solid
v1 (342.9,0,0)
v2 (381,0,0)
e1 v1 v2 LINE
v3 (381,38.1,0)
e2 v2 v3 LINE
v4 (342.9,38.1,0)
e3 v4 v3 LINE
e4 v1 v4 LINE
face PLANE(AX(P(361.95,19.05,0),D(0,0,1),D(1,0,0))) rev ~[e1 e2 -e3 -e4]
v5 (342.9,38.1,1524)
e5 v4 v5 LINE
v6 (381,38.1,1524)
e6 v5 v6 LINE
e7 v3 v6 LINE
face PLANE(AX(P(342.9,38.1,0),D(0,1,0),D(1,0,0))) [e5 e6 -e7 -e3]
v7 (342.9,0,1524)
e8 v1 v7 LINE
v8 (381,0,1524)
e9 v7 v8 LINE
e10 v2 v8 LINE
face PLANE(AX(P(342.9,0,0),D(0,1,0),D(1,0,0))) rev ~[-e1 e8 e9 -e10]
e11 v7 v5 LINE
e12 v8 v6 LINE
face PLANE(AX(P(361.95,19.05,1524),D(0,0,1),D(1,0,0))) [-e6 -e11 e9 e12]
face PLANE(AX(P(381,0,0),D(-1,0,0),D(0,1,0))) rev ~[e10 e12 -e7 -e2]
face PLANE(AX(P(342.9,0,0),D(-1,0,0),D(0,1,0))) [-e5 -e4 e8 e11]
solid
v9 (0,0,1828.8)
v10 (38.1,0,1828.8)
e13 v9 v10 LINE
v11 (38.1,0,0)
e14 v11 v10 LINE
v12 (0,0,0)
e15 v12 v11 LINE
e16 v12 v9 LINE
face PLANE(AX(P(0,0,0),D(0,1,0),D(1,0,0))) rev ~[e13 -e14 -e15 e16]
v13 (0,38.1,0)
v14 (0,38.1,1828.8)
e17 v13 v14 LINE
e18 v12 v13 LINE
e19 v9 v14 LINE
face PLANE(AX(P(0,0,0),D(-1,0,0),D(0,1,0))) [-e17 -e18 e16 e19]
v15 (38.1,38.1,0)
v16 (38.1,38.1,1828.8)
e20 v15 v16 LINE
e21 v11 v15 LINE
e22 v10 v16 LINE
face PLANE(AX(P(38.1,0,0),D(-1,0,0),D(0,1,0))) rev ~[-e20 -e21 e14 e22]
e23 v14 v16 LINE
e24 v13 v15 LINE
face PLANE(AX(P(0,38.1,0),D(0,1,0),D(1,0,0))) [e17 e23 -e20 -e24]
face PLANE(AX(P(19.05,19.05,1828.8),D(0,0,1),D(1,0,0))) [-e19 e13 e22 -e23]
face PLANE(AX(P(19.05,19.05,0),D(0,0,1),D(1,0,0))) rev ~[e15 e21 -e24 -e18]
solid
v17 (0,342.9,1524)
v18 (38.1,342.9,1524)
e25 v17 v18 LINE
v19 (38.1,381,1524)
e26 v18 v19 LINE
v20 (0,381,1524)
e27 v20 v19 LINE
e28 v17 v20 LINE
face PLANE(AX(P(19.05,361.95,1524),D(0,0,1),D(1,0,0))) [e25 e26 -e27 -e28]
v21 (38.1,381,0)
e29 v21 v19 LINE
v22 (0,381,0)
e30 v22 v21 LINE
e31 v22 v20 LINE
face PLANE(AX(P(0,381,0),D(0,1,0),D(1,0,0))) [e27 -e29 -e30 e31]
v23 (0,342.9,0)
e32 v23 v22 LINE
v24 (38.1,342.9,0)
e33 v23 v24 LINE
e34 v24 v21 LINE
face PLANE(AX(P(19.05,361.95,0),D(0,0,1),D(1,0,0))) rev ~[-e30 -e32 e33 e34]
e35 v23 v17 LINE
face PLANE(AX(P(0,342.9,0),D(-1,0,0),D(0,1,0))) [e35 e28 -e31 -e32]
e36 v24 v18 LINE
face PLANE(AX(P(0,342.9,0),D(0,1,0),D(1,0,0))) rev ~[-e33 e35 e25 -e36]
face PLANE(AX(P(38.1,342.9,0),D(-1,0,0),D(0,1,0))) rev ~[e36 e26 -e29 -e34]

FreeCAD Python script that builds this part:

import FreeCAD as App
import Part
import Sketcher
from FreeCAD import Vector
Q = App.Units.Quantity


def add_polygon(sketch, points):
    """Adds a closed chain of lines whose ends are joined by coincident constraints."""
    first, n = sketch.GeometryCount, len(points)
    for a, b in zip(points, points[1:] + points[:1]):
        sketch.addGeometry(Part.LineSegment(App.Vector(*a, 0), App.Vector(*b, 0)), False)
    for i in range(n):
        sketch.addConstraint(Sketcher.Constraint("Coincident", first + i, 2, first + (i + 1) % n, 1))

doc = App.newDocument("Part")
body = doc.addObject("PartDesign::Body", "Body")

sketch1 = doc.addObject("Sketcher::SketchObject", "Sketch")
body.addObject(sketch1)
sketch1.AttachmentSupport = (doc.XY_Plane, [""])
sketch1.MapMode = "FlatFace"
add_polygon(sketch1, [(0, 38), (0, 0), (38, 0), (38, 38)])
sketch1.addConstraint([
    Sketcher.Constraint("Vertical", 0),
    Sketcher.Constraint("Horizontal", 1),
    Sketcher.Constraint("Vertical", 2),
    Sketcher.Constraint("Horizontal", 3),
    Sketcher.Constraint("Coincident", 0, 2, -1, 1),
    Sketcher.Constraint("Equal", 3, 0),
    Sketcher.Constraint("DistanceX", 1, 1, 1, 2, Q("1.5 in")),
])
pad1 = doc.addObject("PartDesign::Pad", "Pad")
body.addObject(pad1)
pad1.Profile = sketch1
pad1.Length = Q("72 in")
body2 = doc.addObject("PartDesign::Body", "Body001")
body2.AllowCompound = True

sketch2 = doc.addObject("Sketcher::SketchObject", "Sketch001")
body2.addObject(sketch2)
sketch2.AttachmentSupport = (doc.getObject("XY_Plane001"), [""])
sketch2.MapMode = "FlatFace"
add_polygon(sketch2, [(0, 381), (0, 343), (38, 343), (38, 381)])
add_polygon(sketch2, [(343, 38), (343, 0), (381, 0), (381, 38)])
sketch2.addConstraint([
    Sketcher.Constraint("Vertical", 0),
    Sketcher.Constraint("Horizontal", 1),
    Sketcher.Constraint("Vertical", 2),
    Sketcher.Constraint("Horizontal", 3),
    Sketcher.Constraint("Vertical", 4),
    Sketcher.Constraint("Horizontal", 5),
    Sketcher.Constraint("Vertical", 6),
    Sketcher.Constraint("Horizontal", 7),
    Sketcher.Constraint("PointOnObject", 0, 2, -2),
    Sketcher.Constraint("PointOnObject", 4, 2, -1),
    Sketcher.Constraint("Equal", 3, 5),
    Sketcher.Constraint("Equal", 7, 0),
    Sketcher.Constraint("Equal", 2, 4),
    Sketcher.Constraint("DistanceX", 1, 1, 1, 2, Q("1.5 in")),
    Sketcher.Constraint("DistanceY", -1, 1, 2, 2, Q("15 in")),
    Sketcher.Constraint("DistanceX", -1, 1, 5, 2, Q("15 in")),
])
pad2 = doc.addObject("PartDesign::Pad", "Pad001")
body2.addObject(pad2)
pad2.Profile = sketch2
pad2.Length = Q("60 in")

doc.recompute()
